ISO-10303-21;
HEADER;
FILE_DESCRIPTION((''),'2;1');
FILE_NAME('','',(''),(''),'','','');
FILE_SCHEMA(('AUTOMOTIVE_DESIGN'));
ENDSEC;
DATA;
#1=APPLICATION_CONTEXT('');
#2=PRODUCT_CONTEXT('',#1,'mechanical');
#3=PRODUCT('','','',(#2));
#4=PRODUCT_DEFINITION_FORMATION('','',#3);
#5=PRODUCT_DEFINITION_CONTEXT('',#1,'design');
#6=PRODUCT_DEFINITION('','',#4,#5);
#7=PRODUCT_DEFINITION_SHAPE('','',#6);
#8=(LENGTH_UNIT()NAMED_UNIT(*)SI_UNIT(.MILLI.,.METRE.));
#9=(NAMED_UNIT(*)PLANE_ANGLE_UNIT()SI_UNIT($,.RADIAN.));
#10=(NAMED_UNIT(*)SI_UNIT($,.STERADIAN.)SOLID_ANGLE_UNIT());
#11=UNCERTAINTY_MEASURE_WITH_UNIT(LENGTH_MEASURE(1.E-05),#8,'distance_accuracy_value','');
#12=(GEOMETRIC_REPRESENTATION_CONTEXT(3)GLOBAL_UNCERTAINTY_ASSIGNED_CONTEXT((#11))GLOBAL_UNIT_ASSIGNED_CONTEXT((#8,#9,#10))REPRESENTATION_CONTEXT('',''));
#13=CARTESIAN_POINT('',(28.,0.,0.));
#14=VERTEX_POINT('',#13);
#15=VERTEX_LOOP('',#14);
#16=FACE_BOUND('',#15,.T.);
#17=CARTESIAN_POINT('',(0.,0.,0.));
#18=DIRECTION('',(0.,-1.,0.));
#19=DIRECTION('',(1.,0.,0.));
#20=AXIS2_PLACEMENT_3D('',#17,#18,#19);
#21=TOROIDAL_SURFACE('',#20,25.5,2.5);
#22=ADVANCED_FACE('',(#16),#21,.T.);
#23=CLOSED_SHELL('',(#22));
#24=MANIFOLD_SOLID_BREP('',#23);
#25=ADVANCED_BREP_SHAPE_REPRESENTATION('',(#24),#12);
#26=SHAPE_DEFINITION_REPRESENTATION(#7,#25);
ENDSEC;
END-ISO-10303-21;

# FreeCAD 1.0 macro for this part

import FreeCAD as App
import Part
import Sketcher
from FreeCAD import Vector
Q = App.Units.Quantity

doc = App.newDocument("Part")
body = doc.addObject("PartDesign::Body", "Body")

# Sketch on XY plane
sketch1 = doc.addObject("Sketcher::SketchObject", "Sketch")
body.addObject(sketch1)
sketch1.AttachmentSupport = (doc.XY_Plane, [""])
sketch1.MapMode = "FlatFace"
sketch1.addGeometry(Part.Circle(Vector(-25.5, 0, 0), Vector(0, 0, 1), 2.5), False)
sketch1.addConstraint([
    Sketcher.Constraint("PointOnObject", 0, 3, -1),
    Sketcher.Constraint("Diameter", 0, Q("5 mm")),
    Sketcher.Constraint("DistanceX", 0, 3, -1, 1, Q("25.5 mm")),
])
revolution = doc.addObject("PartDesign::Revolution", "Revolution")
body.addObject(revolution)
revolution.Profile = sketch1
revolution.ReferenceAxis = (sketch1, ["V_Axis"])
revolution.Angle = 360

doc.recompute()
